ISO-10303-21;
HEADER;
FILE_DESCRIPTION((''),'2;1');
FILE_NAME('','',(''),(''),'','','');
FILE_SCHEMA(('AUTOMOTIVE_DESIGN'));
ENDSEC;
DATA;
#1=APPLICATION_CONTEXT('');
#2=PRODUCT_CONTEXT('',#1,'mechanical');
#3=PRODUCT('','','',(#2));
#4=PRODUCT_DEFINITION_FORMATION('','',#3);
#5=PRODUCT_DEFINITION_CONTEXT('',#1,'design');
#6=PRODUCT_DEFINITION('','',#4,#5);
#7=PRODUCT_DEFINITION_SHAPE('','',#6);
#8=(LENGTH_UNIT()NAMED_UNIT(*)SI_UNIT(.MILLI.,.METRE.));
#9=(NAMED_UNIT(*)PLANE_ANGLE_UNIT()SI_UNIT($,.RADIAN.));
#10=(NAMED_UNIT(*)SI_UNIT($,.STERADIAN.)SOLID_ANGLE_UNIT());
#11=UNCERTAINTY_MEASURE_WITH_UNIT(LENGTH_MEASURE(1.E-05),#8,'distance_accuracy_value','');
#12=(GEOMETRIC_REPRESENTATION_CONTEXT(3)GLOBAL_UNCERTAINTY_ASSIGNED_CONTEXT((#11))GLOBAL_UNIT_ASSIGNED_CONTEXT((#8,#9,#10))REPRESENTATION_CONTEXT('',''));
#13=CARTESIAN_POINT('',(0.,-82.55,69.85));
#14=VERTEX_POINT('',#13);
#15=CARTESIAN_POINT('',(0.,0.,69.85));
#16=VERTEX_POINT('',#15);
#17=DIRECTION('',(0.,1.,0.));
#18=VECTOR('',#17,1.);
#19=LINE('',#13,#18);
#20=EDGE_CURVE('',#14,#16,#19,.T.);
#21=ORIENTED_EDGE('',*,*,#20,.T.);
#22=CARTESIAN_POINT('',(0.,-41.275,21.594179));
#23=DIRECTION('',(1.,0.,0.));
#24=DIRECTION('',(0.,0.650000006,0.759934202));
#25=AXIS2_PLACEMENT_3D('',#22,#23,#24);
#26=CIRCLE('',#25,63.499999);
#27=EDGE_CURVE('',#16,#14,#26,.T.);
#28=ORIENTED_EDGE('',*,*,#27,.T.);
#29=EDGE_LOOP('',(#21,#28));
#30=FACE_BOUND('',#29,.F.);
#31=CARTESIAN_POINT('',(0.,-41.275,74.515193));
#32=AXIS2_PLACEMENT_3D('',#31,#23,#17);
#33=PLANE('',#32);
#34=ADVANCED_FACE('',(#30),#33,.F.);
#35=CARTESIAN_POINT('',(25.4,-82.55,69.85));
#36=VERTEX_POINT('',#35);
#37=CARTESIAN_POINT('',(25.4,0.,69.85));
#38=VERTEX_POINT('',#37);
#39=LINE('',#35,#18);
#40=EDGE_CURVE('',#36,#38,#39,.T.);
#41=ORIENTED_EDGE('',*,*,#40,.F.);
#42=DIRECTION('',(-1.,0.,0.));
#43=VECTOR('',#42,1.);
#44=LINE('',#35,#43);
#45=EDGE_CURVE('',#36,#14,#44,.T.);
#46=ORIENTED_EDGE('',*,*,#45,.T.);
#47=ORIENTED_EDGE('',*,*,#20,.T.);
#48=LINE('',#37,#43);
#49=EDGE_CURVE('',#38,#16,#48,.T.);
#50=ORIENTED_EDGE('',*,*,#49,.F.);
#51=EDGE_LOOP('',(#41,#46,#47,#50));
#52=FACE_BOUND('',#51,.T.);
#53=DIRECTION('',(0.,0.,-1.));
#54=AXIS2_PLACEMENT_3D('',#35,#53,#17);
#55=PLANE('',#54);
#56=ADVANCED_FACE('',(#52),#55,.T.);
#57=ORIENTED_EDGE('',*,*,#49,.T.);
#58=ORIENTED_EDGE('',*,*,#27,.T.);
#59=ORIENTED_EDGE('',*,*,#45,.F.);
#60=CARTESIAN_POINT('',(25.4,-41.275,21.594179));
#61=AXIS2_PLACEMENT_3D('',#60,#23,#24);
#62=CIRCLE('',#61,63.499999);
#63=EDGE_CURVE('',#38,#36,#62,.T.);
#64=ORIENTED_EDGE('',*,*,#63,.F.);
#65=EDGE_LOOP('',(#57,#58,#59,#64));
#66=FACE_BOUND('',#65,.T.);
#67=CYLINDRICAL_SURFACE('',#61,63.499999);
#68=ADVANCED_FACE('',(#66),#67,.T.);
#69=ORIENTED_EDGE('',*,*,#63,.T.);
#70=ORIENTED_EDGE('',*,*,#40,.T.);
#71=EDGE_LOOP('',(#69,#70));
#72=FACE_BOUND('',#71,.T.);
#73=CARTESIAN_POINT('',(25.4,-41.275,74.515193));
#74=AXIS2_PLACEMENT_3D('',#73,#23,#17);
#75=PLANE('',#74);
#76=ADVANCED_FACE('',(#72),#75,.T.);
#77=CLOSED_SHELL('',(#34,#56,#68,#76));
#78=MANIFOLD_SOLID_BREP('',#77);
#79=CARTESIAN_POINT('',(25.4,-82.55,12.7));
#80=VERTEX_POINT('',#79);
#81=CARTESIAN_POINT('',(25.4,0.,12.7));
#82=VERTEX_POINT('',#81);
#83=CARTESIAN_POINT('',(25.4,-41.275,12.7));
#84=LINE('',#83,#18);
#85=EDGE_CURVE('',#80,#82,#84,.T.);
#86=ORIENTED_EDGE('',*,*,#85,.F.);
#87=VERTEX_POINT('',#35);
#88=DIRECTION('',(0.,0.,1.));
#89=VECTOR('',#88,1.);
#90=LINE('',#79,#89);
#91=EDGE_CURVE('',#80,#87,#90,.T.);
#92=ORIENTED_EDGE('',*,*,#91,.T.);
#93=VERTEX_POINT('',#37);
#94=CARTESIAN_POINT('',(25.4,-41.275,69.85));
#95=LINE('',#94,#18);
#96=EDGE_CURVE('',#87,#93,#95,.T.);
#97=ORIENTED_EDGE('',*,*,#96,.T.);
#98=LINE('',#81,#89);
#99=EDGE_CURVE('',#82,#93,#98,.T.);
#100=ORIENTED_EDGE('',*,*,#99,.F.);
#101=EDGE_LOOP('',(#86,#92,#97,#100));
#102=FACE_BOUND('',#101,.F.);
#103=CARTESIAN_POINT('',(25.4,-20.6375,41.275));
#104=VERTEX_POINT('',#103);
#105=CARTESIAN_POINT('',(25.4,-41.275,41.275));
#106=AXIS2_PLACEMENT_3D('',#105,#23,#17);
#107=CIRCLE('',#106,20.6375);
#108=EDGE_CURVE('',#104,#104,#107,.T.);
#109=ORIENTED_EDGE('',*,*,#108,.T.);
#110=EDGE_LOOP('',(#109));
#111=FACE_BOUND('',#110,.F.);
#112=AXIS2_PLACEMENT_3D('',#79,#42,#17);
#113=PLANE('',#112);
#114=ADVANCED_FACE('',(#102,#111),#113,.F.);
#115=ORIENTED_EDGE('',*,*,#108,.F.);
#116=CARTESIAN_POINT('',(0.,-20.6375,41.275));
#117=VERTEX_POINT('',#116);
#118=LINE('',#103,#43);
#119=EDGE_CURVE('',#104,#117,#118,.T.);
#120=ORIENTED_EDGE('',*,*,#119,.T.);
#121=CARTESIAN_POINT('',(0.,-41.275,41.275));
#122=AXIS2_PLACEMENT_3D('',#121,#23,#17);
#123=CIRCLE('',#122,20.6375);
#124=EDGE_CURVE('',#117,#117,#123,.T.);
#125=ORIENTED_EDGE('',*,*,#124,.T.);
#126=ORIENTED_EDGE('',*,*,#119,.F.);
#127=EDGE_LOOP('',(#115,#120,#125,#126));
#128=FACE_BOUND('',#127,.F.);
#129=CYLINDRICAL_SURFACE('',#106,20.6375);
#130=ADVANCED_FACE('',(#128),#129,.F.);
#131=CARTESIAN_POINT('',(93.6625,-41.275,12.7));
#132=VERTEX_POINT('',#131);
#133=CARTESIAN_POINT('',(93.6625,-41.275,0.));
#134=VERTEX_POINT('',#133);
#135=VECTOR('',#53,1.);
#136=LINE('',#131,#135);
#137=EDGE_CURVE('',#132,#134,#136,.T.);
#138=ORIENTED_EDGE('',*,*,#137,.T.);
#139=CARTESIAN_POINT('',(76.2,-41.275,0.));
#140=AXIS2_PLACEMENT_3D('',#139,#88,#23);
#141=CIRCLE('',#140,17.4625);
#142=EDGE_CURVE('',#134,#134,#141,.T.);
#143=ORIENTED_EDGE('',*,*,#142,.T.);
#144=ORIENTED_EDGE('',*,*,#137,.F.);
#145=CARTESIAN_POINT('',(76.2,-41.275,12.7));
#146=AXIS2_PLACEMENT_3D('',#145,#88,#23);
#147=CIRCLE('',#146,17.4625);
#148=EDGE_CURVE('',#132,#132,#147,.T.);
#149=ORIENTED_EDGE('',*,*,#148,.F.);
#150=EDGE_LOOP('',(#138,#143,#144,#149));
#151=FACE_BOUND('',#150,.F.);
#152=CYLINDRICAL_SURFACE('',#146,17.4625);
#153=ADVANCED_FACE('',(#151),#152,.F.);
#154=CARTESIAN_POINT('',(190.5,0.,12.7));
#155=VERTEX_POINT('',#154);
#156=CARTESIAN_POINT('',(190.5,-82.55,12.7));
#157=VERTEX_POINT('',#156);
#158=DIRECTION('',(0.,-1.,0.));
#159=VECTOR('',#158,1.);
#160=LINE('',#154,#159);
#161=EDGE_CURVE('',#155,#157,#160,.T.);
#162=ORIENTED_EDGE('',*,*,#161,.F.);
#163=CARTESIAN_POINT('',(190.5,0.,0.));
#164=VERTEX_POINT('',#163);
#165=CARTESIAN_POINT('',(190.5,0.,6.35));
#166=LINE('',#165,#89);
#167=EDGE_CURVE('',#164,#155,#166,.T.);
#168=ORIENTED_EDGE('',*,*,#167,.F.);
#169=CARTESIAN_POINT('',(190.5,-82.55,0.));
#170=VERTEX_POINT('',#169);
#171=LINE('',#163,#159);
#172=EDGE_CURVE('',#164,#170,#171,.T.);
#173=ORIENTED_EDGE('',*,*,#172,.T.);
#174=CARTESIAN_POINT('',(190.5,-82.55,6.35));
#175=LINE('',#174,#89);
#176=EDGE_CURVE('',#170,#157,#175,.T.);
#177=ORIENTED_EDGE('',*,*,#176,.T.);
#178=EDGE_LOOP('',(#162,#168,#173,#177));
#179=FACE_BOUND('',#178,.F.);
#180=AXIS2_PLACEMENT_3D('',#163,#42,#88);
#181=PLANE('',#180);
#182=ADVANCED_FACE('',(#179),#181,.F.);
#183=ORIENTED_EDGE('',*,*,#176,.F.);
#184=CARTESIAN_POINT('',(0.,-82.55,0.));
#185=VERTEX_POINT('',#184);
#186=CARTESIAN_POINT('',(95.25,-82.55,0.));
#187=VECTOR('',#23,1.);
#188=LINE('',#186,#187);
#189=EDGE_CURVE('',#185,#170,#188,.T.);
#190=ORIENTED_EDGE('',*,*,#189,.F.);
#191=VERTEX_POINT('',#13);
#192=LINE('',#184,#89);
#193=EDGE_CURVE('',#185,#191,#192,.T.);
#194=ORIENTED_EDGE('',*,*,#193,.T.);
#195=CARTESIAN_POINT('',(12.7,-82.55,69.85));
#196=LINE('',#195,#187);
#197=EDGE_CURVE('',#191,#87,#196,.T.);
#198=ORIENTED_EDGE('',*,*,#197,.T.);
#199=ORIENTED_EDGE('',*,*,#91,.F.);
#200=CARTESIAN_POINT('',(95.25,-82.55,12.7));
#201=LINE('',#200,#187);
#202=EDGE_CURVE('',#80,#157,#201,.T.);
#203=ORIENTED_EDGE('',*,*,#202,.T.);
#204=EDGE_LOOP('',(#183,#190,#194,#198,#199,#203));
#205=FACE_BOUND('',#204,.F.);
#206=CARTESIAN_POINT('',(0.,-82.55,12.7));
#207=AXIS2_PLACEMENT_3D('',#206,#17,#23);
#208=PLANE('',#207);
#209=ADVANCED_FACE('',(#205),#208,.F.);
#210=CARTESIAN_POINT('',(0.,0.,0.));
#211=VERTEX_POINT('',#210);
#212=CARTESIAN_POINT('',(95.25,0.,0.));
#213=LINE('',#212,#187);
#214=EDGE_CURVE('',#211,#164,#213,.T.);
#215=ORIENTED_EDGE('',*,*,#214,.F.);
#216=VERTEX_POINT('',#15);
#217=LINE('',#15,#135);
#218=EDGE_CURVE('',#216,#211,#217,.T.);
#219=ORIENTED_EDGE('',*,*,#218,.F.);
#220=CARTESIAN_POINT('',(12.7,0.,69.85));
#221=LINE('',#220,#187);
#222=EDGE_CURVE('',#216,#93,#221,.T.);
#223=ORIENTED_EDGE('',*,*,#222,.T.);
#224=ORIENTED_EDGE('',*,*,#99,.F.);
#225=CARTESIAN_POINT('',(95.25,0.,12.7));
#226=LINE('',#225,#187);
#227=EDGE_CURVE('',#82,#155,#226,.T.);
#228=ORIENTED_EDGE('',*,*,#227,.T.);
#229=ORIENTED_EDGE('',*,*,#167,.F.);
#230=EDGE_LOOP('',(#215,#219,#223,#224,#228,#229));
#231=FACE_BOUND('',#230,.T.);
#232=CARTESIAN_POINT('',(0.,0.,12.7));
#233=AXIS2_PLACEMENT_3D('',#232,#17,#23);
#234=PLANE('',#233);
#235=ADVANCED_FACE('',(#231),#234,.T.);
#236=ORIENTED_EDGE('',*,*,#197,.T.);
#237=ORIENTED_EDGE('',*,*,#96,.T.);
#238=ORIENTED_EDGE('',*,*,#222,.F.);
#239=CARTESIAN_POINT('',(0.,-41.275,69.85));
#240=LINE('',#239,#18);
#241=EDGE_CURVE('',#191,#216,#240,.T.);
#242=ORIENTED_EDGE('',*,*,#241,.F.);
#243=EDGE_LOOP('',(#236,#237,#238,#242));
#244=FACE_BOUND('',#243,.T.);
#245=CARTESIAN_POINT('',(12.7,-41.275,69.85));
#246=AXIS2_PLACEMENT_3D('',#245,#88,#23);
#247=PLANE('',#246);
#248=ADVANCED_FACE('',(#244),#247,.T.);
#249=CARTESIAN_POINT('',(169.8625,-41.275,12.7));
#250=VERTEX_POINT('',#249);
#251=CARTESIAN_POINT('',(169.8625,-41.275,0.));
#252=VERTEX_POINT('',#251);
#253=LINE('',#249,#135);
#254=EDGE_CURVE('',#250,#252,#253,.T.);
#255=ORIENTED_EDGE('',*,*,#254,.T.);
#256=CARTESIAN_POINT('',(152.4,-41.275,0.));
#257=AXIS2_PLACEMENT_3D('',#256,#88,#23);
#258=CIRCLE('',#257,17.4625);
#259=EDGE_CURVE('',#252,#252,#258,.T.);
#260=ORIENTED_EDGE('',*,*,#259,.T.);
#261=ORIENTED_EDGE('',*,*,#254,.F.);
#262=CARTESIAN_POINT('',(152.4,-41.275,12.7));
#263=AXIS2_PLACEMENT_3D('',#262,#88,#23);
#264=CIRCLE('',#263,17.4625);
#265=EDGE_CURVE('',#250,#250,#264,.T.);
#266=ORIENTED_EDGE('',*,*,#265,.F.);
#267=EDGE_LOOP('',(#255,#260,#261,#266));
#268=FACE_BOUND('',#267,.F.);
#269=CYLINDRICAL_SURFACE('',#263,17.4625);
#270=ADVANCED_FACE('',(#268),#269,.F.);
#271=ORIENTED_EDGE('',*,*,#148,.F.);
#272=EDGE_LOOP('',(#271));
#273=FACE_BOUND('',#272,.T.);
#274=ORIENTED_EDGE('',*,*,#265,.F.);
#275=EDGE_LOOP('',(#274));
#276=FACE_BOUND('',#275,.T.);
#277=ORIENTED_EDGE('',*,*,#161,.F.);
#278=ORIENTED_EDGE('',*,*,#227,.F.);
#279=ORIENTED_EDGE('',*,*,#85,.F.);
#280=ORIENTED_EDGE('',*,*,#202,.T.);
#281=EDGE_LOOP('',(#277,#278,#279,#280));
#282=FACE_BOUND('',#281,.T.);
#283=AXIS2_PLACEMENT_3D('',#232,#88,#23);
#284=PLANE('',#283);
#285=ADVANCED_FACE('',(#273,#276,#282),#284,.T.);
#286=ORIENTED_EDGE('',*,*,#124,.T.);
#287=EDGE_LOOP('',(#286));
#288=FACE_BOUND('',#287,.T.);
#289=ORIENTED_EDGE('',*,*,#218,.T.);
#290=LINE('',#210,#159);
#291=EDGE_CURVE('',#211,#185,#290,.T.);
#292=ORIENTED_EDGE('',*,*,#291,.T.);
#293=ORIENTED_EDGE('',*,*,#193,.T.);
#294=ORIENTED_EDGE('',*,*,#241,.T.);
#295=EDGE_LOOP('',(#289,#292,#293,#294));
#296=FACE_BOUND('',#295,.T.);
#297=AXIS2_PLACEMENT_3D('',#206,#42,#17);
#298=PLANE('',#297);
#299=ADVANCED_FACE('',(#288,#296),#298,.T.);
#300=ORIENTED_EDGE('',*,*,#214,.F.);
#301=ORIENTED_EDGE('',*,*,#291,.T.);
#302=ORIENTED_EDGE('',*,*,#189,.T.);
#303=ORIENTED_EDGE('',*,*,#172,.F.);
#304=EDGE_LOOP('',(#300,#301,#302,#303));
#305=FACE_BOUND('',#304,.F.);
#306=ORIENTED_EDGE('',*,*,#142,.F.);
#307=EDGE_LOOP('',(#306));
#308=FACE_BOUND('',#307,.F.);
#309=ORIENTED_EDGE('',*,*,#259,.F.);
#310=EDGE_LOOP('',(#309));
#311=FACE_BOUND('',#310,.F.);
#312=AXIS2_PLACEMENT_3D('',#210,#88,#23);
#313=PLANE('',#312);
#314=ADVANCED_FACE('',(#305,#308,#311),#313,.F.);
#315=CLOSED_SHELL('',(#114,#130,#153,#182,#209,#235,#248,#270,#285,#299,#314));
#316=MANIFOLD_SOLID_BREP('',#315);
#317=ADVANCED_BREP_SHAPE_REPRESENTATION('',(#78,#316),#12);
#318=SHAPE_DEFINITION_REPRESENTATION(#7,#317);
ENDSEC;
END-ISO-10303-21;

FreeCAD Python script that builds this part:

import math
import FreeCAD as App
import Part
import Sketcher

V = App.Vector
Q = App.Units.Quantity

doc = App.newDocument("Part")
params = doc.addObject("Spreadsheet::Sheet", "Params")
for row, (alias, value) in enumerate([
    ("sketch1_width", "7.5 in"),
    ("sketch1_height", "0.5 in"),
    ("pad1_length", "3.25 in"),
    ("sketch2_width", "1 in"),
    ("sketch2_height", "3.25 in"),
    ("pad2_length", "2.25 in"),
    ("sketch3_diameter", "1.625 in"),
    ("sketch4_diameter", "1.375 in"),
    ("sketch5_radius", "2.5 in"),
    ("sketch5_width", "3.25 in"),
    ("pad3_length", "1 in"),
], start=1):
    params.set(f"A{row}", alias)
    params.set(f"B{row}", "=" + value)
    params.setAlias(f"B{row}", alias)

body = doc.addObject("PartDesign::Body", "Body")

# Sketch on XZ plane
sketch1 = body.newObject("Sketcher::SketchObject", "Sketch")
sketch1.AttachmentSupport = (doc.getObject("XZ_Plane"), [""])
sketch1.MapMode = "FlatFace"
sketch1.addGeometry(Part.LineSegment(V(0, 13, 0), V(0, 0, 0)), False)
sketch1.addGeometry(Part.LineSegment(V(0, 0, 0), V(190, 0, 0)), False)
sketch1.addGeometry(Part.LineSegment(V(190, 0, 0), V(190, 13, 0)), False)
sketch1.addGeometry(Part.LineSegment(V(190, 13, 0), V(0, 13, 0)), False)
sketch1.addConstraint(Sketcher.Constraint("Coincident", 0, 2, 1, 1))
sketch1.addConstraint(Sketcher.Constraint("Coincident", 1, 2, 2, 1))
sketch1.addConstraint(Sketcher.Constraint("Coincident", 2, 2, 3, 1))
sketch1.addConstraint(Sketcher.Constraint("Coincident", 3, 2, 0, 1))
sketch1.addConstraint(Sketcher.Constraint("Vertical", 0))
sketch1.addConstraint(Sketcher.Constraint("Horizontal", 1))
sketch1.addConstraint(Sketcher.Constraint("Vertical", 2))
sketch1.addConstraint(Sketcher.Constraint("Horizontal", 3))
sketch1.addConstraint(Sketcher.Constraint("Coincident", 0, 2, -1, 1))
sketch1.addConstraint(Sketcher.Constraint("DistanceX", 1, 1, 1, 2, Q("7.5 in")))
sketch1.addConstraint(Sketcher.Constraint("DistanceY", 0, 2, 0, 1, Q("0.5 in")))
sketch1.setExpression("Constraints[9]", "Params.sketch1_width")
sketch1.setExpression("Constraints[10]", "Params.sketch1_height")
pad1 = body.newObject("PartDesign::Pad", "Pad")
pad1.Profile = sketch1
pad1.setExpression("Length", "Params.pad1_length")

# Sketch on XY plane
sketch2 = body.newObject("Sketcher::SketchObject", "Sketch001")
sketch2.AttachmentSupport = (doc.getObject("XY_Plane"), [""])
sketch2.MapMode = "FlatFace"
sketch2.AttachmentOffset = App.Placement(V(0, 0, 0.5 * 25.4), App.Rotation())
sketch2.addGeometry(Part.LineSegment(V(0, 0, 0), V(0, -83, 0)), False)
sketch2.addGeometry(Part.LineSegment(V(0, -83, 0), V(25, -83, 0)), False)
sketch2.addGeometry(Part.LineSegment(V(25, -83, 0), V(25, 0, 0)), False)
sketch2.addGeometry(Part.LineSegment(V(25, 0, 0), V(0, 0, 0)), False)
sketch2.addConstraint(Sketcher.Constraint("Coincident", 0, 2, 1, 1))
sketch2.addConstraint(Sketcher.Constraint("Coincident", 1, 2, 2, 1))
sketch2.addConstraint(Sketcher.Constraint("Coincident", 2, 2, 3, 1))
sketch2.addConstraint(Sketcher.Constraint("Coincident", 3, 2, 0, 1))
sketch2.addConstraint(Sketcher.Constraint("Vertical", 0))
sketch2.addConstraint(Sketcher.Constraint("Horizontal", 1))
sketch2.addConstraint(Sketcher.Constraint("Vertical", 2))
sketch2.addConstraint(Sketcher.Constraint("Horizontal", 3))
sketch2.addConstraint(Sketcher.Constraint("Coincident", 3, 2, -1, 1))
sketch2.addConstraint(Sketcher.Constraint("DistanceX", 1, 1, 1, 2, Q("1 in")))
sketch2.addConstraint(Sketcher.Constraint("DistanceY", 0, 2, 0, 1, Q("3.25 in")))
sketch2.setExpression("Constraints[9]", "Params.sketch2_width")
sketch2.setExpression("Constraints[10]", "Params.sketch2_height")
pad2 = body.newObject("PartDesign::Pad", "Pad001")
pad2.Profile = sketch2
pad2.setExpression("Length", "Params.pad2_length")

# Sketch on YZ plane
sketch3 = body.newObject("Sketcher::SketchObject", "Sketch002")
sketch3.AttachmentSupport = (doc.getObject("YZ_Plane"), [""])
sketch3.MapMode = "FlatFace"
sketch3.AttachmentOffset = App.Placement(V(0, 0, 1 * 25.4), App.Rotation())
sketch3.addGeometry(Part.Circle(V(-41, 41, 0), V(0, 0, 1), 21), False)
sketch3.addConstraint(Sketcher.Constraint("Diameter", 0, Q("1.625 in")))
sketch3.addConstraint(Sketcher.Constraint("DistanceX", 0, 3, -1, 1, Q("1.625 in")))
sketch3.addConstraint(Sketcher.Constraint("DistanceY", -1, 1, 0, 3, Q("1.625 in")))
sketch3.setExpression("Constraints[0]", "Params.sketch3_diameter")
pocket1 = body.newObject("PartDesign::Pocket", "Pocket")
pocket1.Profile = sketch3
pocket1.Type = "ThroughAll"

# Sketch on XY plane
sketch4 = body.newObject("Sketcher::SketchObject", "Sketch003")
sketch4.AttachmentSupport = (doc.getObject("XY_Plane"), [""])
sketch4.MapMode = "FlatFace"
sketch4.AttachmentOffset = App.Placement(V(0, 0, 0.5 * 25.4), App.Rotation())
sketch4.addGeometry(Part.Circle(V(76, -41, 0), V(0, 0, 1), 17), False)
sketch4.addGeometry(Part.Circle(V(152, -41, 0), V(0, 0, 1), 17), False)
sketch4.addConstraint(Sketcher.Constraint("Equal", 0, 1))
sketch4.addConstraint(Sketcher.Constraint("Horizontal", 0, 3, 1, 3))
sketch4.addConstraint(Sketcher.Constraint("Diameter", 0, Q("1.375 in")))
sketch4.addConstraint(Sketcher.Constraint("DistanceX", -1, 1, 0, 3, Q("3 in")))
sketch4.addConstraint(Sketcher.Constraint("DistanceX", -1, 1, 1, 3, Q("6 in")))
sketch4.addConstraint(Sketcher.Constraint("DistanceY", 0, 3, -1, 1, Q("1.625 in")))
sketch4.setExpression("Constraints[2]", "Params.sketch4_diameter")
pocket2 = body.newObject("PartDesign::Pocket", "Pocket001")
pocket2.Profile = sketch4
pocket2.Type = "ThroughAll"
body2 = doc.addObject("PartDesign::Body", "Body001")

# Sketch on YZ plane
sketch5 = body2.newObject("Sketcher::SketchObject", "Sketch004")
sketch5.AttachmentSupport = (doc.getObject("YZ_Plane001"), [""])
sketch5.MapMode = "FlatFace"
sketch5.AttachmentOffset = App.Placement(V(0, 0, 1 * 25.4), App.Rotation())
sketch5.addGeometry(Part.LineSegment(V(-83, 70, 0), V(0, 70, 0)), False)
sketch5.addGeometry(Part.ArcOfCircle(Part.Circle(V(-41, 22, 0), V(0, 0, 1), 63), math.radians(49), math.radians(131)), False)
sketch5.addConstraint(Sketcher.Constraint("Coincident", 0, 1, 1, 2))
sketch5.addConstraint(Sketcher.Constraint("Coincident", 1, 1, 0, 2))
sketch5.addConstraint(Sketcher.Constraint("Horizontal", 0))
sketch5.addConstraint(Sketcher.Constraint("PointOnObject", 1, 1, -2))
sketch5.addConstraint(Sketcher.Constraint("Radius", 1, Q("2.5 in")))
sketch5.addConstraint(Sketcher.Constraint("DistanceX", 0, 1, 0, 2, Q("3.25 in")))
sketch5.addConstraint(Sketcher.Constraint("DistanceY", -1, 1, 0, 1, Q("2.75 in")))
sketch5.setExpression("Constraints[4]", "Params.sketch5_radius")
sketch5.setExpression("Constraints[5]", "Params.sketch5_width")
pad3 = body2.newObject("PartDesign::Pad", "Pad002")
pad3.Profile = sketch5
pad3.setExpression("Length", "Params.pad3_length")
pad3.Reversed = True

doc.recompute()
